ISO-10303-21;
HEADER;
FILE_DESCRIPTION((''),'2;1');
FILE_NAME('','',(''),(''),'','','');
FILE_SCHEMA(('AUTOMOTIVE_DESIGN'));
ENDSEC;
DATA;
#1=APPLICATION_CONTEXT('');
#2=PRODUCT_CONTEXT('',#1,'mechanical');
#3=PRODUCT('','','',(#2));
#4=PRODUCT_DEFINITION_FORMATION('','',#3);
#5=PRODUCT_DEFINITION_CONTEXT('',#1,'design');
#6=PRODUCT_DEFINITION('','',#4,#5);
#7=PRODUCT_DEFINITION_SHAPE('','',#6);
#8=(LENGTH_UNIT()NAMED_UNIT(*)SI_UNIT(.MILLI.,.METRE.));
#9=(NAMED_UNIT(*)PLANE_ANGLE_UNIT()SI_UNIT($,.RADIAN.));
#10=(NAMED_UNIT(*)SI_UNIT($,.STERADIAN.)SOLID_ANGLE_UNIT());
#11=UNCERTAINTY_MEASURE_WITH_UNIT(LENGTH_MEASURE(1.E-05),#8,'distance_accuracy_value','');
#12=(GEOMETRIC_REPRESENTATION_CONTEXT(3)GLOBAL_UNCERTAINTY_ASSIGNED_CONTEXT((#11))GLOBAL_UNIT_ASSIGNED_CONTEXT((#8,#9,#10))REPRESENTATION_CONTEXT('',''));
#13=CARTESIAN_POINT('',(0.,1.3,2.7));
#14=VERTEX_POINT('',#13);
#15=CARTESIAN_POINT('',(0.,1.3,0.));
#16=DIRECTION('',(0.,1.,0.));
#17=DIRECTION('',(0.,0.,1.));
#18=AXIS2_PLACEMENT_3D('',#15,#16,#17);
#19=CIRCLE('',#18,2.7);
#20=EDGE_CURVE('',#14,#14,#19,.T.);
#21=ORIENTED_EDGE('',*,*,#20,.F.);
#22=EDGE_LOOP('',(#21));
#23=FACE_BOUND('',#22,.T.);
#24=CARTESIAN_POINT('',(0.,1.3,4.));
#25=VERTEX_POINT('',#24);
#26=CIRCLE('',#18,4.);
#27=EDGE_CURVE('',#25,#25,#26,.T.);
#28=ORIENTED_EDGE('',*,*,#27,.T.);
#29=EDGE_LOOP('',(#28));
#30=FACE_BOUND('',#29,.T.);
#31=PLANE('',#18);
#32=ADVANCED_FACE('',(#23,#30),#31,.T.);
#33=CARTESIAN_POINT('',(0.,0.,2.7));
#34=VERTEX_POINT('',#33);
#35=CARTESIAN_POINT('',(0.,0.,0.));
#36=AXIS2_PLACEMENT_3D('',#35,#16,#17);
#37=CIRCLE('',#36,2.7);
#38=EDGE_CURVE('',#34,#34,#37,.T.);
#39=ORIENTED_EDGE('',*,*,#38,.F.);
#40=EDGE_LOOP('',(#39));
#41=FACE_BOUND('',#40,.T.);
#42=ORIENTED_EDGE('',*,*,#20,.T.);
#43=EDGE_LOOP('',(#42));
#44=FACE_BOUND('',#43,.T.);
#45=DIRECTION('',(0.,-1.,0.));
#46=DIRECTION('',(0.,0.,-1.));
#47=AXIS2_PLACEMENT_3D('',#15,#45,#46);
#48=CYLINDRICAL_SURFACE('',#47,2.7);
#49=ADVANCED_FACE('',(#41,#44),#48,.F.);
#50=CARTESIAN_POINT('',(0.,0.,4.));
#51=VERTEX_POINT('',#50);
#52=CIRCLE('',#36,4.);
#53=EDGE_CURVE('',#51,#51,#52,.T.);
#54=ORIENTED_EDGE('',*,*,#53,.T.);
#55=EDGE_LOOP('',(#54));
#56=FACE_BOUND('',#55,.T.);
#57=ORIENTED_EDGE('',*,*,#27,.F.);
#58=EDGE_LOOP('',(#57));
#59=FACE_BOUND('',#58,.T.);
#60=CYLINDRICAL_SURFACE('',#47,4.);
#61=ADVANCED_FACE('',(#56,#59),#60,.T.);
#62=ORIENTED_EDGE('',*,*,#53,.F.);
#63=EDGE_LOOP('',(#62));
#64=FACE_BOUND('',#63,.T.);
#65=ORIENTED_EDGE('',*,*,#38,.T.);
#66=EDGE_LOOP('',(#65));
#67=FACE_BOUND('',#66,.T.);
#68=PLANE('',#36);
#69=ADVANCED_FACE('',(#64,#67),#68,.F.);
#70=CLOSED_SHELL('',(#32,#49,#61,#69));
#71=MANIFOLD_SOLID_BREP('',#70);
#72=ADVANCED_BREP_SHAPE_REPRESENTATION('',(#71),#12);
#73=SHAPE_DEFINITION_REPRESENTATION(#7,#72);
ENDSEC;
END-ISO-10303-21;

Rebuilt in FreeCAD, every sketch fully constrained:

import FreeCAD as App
import Part
import Sketcher

doc = App.newDocument("Part")
body = doc.addObject("PartDesign::Body", "Body")

sketch1 = body.newObject("Sketcher::SketchObject", "Sketch")
sketch1.AttachmentSupport = (doc.getObject("XZ_Plane"), [""])
sketch1.MapMode = "FlatFace"
sketch1.addGeometry([
    Part.Circle(App.Vector(0, 0, 0), App.Vector(0, 0, 1), 4),
    Part.Circle(App.Vector(0, 0, 0), App.Vector(0, 0, 1), 2.7),
], False)
sketch1.addConstraint([
    Sketcher.Constraint("Coincident", 0, 3, -1, 1),
    Sketcher.Constraint("Coincident", 1, 3, -1, 1),
    Sketcher.Constraint("Diameter", 0, 8.0),
    Sketcher.Constraint("Diameter", 1, 5.4),
])
pad1 = body.newObject("PartDesign::Pad", "Pad")
pad1.Profile = sketch1
pad1.Length = 1.3
pad1.Reversed = True

doc.recompute()
